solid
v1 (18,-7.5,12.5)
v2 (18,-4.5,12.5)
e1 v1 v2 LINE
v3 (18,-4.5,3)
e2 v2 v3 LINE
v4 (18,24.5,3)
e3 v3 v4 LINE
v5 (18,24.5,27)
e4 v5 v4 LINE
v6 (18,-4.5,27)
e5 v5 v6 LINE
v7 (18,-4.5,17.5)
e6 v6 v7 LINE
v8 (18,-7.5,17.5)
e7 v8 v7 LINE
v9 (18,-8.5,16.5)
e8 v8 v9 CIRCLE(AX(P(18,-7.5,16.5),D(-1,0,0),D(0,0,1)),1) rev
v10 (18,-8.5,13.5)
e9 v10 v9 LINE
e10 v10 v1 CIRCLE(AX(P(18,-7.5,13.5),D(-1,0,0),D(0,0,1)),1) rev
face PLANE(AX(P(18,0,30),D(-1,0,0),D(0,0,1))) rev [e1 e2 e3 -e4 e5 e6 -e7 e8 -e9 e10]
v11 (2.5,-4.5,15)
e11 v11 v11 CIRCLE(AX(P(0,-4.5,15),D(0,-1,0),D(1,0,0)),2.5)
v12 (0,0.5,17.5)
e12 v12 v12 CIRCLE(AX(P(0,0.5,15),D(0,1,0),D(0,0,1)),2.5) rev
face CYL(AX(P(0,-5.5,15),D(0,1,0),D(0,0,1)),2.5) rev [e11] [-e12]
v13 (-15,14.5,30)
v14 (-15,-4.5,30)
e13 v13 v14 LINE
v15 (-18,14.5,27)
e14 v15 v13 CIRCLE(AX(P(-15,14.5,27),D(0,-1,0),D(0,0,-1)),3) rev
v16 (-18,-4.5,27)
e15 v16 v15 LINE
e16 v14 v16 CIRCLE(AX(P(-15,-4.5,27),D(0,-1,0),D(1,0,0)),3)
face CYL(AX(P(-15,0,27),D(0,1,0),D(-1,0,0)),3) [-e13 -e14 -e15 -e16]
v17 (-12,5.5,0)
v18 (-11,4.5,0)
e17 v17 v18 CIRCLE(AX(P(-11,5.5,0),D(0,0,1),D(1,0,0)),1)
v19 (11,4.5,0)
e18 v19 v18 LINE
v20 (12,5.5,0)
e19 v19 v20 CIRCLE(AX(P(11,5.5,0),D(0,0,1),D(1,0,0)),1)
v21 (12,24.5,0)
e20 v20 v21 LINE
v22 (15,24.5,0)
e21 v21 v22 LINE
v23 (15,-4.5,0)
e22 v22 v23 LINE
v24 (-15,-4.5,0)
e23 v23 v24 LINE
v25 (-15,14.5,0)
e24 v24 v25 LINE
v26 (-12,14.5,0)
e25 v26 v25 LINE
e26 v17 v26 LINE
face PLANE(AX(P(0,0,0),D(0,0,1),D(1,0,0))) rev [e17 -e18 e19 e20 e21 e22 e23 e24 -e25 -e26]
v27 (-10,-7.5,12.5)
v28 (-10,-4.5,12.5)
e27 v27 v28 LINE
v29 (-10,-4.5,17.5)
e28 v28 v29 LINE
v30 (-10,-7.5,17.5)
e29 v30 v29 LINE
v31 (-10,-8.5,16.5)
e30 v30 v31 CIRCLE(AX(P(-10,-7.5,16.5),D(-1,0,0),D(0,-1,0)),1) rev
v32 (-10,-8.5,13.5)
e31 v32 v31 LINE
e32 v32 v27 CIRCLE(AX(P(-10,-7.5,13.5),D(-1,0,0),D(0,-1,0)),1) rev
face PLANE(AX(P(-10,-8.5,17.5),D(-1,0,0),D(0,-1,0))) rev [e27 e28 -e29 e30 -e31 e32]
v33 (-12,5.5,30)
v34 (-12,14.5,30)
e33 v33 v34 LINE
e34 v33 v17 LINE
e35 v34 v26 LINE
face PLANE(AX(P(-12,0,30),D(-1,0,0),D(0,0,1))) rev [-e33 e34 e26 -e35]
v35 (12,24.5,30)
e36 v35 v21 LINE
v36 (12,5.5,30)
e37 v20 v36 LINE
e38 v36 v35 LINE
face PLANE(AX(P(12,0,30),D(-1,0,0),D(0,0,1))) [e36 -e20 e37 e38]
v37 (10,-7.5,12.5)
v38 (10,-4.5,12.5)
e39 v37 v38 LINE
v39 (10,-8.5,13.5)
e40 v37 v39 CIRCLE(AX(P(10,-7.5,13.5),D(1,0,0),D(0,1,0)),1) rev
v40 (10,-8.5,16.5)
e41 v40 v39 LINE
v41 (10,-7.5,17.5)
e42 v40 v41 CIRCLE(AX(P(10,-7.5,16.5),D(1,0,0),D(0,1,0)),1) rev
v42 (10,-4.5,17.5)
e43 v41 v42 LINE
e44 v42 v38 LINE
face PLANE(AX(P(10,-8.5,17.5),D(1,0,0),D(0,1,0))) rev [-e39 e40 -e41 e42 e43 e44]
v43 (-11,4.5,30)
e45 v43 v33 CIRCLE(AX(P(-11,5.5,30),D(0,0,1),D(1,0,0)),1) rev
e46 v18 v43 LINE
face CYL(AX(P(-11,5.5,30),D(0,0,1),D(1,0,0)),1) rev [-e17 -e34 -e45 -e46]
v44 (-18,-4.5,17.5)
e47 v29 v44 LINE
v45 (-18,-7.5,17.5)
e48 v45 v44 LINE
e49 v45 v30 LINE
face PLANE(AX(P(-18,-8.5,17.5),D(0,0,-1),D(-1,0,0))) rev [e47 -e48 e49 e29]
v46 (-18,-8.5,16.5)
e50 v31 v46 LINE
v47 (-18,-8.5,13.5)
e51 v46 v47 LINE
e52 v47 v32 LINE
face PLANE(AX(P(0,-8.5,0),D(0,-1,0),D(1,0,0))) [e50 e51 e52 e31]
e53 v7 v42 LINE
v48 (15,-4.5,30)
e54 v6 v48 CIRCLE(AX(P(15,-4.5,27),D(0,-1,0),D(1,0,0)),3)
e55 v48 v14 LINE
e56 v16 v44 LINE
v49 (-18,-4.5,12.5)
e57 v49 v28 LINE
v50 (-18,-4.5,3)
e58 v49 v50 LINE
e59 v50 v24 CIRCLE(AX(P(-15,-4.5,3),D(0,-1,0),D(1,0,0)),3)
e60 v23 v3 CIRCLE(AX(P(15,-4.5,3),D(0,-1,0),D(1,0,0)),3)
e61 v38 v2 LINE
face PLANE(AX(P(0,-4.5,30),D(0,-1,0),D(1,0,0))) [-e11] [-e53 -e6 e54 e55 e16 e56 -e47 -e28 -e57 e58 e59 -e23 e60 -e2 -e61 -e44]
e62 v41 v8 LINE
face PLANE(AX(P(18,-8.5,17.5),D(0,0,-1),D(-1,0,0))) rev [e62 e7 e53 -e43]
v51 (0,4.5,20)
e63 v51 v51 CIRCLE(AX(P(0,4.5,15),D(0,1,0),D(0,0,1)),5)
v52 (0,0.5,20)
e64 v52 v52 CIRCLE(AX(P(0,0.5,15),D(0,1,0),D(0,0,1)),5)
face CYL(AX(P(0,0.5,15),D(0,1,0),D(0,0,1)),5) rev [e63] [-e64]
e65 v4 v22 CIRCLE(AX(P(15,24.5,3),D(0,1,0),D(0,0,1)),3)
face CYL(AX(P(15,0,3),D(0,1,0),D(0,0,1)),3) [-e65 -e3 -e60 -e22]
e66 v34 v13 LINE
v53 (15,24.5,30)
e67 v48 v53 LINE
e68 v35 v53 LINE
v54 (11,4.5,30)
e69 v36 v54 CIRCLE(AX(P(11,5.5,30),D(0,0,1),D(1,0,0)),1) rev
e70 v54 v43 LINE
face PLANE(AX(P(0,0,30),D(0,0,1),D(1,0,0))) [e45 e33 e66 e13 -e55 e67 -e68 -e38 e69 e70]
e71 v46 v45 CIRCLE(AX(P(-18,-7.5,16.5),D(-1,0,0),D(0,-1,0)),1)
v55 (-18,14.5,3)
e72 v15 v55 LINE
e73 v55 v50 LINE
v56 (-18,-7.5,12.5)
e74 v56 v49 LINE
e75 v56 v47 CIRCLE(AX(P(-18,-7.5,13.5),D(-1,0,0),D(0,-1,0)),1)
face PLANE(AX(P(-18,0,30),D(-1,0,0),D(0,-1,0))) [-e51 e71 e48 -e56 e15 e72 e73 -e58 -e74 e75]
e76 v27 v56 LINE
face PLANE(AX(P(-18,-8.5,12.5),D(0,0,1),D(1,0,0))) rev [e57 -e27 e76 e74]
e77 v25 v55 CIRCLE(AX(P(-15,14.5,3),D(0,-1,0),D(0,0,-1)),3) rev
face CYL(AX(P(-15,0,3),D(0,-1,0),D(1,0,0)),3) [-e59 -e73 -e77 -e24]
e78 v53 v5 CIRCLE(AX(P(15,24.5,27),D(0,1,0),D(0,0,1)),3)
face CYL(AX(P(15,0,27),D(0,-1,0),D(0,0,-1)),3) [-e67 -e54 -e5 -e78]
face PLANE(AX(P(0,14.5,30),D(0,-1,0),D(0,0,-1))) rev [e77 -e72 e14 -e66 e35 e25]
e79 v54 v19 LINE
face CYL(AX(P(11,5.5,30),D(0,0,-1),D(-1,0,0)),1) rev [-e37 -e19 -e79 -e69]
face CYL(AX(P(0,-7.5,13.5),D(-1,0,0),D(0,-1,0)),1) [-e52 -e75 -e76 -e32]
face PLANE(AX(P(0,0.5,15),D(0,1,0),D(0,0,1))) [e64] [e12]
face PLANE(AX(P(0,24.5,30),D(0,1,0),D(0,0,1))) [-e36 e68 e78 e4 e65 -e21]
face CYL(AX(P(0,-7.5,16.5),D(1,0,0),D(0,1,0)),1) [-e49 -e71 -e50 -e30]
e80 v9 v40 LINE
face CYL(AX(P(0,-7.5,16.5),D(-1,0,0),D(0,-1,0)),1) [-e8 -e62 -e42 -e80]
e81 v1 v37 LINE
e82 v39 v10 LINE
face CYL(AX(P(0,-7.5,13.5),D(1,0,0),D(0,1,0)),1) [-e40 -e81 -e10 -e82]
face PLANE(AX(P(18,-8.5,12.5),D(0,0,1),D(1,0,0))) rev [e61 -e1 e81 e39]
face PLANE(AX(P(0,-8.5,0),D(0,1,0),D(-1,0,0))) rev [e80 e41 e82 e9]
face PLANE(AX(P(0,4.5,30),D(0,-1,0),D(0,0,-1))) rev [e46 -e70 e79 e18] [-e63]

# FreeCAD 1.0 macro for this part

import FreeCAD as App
import Part
import Sketcher


def edges_at(feature, points):
    """Names of the edges that pass closest to the given points."""
    edges = feature.Shape.Edges
    near = lambda p: min(range(len(edges)), key=lambda i: edges[i].distToShape(Part.Vertex(*p))[0])
    return sorted({f"Edge{near(p) + 1}" for p in points})


def add_polygon(sketch, points):
    """Adds a closed chain of lines whose ends are joined by coincident constraints."""
    first, n = sketch.GeometryCount, len(points)
    for a, b in zip(points, points[1:] + points[:1]):
        sketch.addGeometry(Part.LineSegment(App.Vector(*a, 0), App.Vector(*b, 0)), False)
    for i in range(n):
        sketch.addConstraint(Sketcher.Constraint("Coincident", first + i, 2, first + (i + 1) % n, 1))

doc = App.newDocument("Part")
body = doc.addObject("PartDesign::Body", "Body")

sketch1 = body.newObject("Sketcher::SketchObject", "Sketch")
sketch1.AttachmentSupport = (doc.getObject("XY_Plane"), [""])
sketch1.MapMode = "FlatFace"
add_polygon(sketch1, [(-18, -4), (18, -4), (18, 24), (12, 24), (12, 4), (-12, 4), (-12, 14), (-18, 14)])
sketch1.addConstraint(Sketcher.Constraint("Horizontal", 0))
sketch1.addConstraint(Sketcher.Constraint("Vertical", 1))
sketch1.addConstraint(Sketcher.Constraint("Horizontal", 2))
sketch1.addConstraint(Sketcher.Constraint("Vertical", 3))
sketch1.addConstraint(Sketcher.Constraint("Horizontal", 4))
sketch1.addConstraint(Sketcher.Constraint("Vertical", 5))
sketch1.addConstraint(Sketcher.Constraint("Horizontal", 6))
sketch1.addConstraint(Sketcher.Constraint("Vertical", 7))
sketch1.addConstraint(Sketcher.Constraint("Equal", 2, 6))
sketch1.addConstraint(Sketcher.Constraint("DistanceX", 0, 1, 0, 2, 36.0))
sketch1.addConstraint(Sketcher.Constraint("DistanceX", 2, 2, 2, 1, 6.0))
sketch1.addConstraint(Sketcher.Constraint("DistanceY", 1, 1, 1, 2, 29.0))
sketch1.addConstraint(Sketcher.Constraint("DistanceY", 3, 2, 3, 1, 20.0))
sketch1.addConstraint(Sketcher.Constraint("DistanceY", 5, 1, 5, 2, 10.0))
sketch1.addConstraint(Sketcher.Constraint("DistanceX", -1, 1, 0, 2, 18.0))
sketch1.addConstraint(Sketcher.Constraint("DistanceY", 0, 2, -1, 1, 4.5))
pad1 = body.newObject("PartDesign::Pad", "Pad")
pad1.Profile = sketch1
pad1.Length = 30
doc.recompute()

fillet = body.newObject("PartDesign::Fillet", "Fillet")
fillet.Base = (pad1, edges_at(pad1, [(-12, 4.5, 15), (12, 4.5, 15)]))
fillet.Radius = 1
doc.recompute()

fillet2 = body.newObject("PartDesign::Fillet", "Fillet001")
fillet2.Base = (fillet, edges_at(fillet, [
    (18, 10, 0),
    (-18, 5, 0),
    (18, 10, 30),
    (-18, 5, 30),
]))
fillet2.Radius = 3

sketch2 = body.newObject("Sketcher::SketchObject", "Sketch001")
sketch2.AttachmentSupport = (doc.getObject("XZ_Plane"), [""])
sketch2.MapMode = "FlatFace"
sketch2.AttachmentOffset = App.Placement(App.Vector(0, 0, -4.5), App.Rotation())
sketch2.addGeometry(Part.Circle(App.Vector(0, 15, 0), App.Vector(0, 0, 1), 2.5), False)
sketch2.addConstraint(Sketcher.Constraint("PointOnObject", 0, 3, -2))
sketch2.addConstraint(Sketcher.Constraint("Diameter", 0, 5.0))
sketch2.addConstraint(Sketcher.Constraint("DistanceY", -1, 1, 0, 3, 15.0))
pocket1 = body.newObject("PartDesign::Pocket", "Pocket")
pocket1.Profile = sketch2
pocket1.Length = 10
pocket1.Reversed = True

sketch3 = body.newObject("Sketcher::SketchObject", "Sketch002")
sketch3.AttachmentSupport = (doc.getObject("XZ_Plane"), [""])
sketch3.MapMode = "FlatFace"
sketch3.AttachmentOffset = App.Placement(App.Vector(0, 0, -4.5), App.Rotation())
sketch3.addGeometry(Part.Circle(App.Vector(0, 15, 0), App.Vector(0, 0, 1), 5), False)
sketch3.addConstraint(Sketcher.Constraint("PointOnObject", 0, 3, -2))
sketch3.addConstraint(Sketcher.Constraint("Diameter", 0, 10.0))
sketch3.addConstraint(Sketcher.Constraint("DistanceY", -1, 1, 0, 3, 15.0))
pocket2 = body.newObject("PartDesign::Pocket", "Pocket001")
pocket2.Profile = sketch3
pocket2.Length = 4
pocket2.Reversed = True

sketch4 = body.newObject("Sketcher::SketchObject", "Sketch003")
sketch4.AttachmentSupport = (doc.getObject("XZ_Plane"), [""])
sketch4.MapMode = "FlatFace"
sketch4.AttachmentOffset = App.Placement(App.Vector(0, 0, 4.5), App.Rotation())
add_polygon(sketch4, [(-18, 18), (-18, 12), (-10, 12), (-10, 18)])
add_polygon(sketch4, [(10, 18), (10, 12), (18, 12), (18, 18)])
sketch4.addConstraint(Sketcher.Constraint("Vertical", 0))
sketch4.addConstraint(Sketcher.Constraint("Horizontal", 1))
sketch4.addConstraint(Sketcher.Constraint("Vertical", 2))
sketch4.addConstraint(Sketcher.Constraint("Horizontal", 3))
sketch4.addConstraint(Sketcher.Constraint("Vertical", 4))
sketch4.addConstraint(Sketcher.Constraint("Horizontal", 5))
sketch4.addConstraint(Sketcher.Constraint("Vertical", 6))
sketch4.addConstraint(Sketcher.Constraint("Horizontal", 7))
sketch4.addConstraint(Sketcher.Constraint("Symmetric", 1, 2, 4, 2, -2))
sketch4.addConstraint(Sketcher.Constraint("Symmetric", 3, 2, 6, 2, -2))
sketch4.addConstraint(Sketcher.Constraint("DistanceX", 1, 1, 1, 2, 8.0))
sketch4.addConstraint(Sketcher.Constraint("DistanceY", 0, 2, 0, 1, 5.0))
sketch4.addConstraint(Sketcher.Constraint("DistanceX", 0, 2, -1, 1, 18.0))
sketch4.addConstraint(Sketcher.Constraint("DistanceY", -1, 1, 0, 2, 12.5))
pad2 = body.newObject("PartDesign::Pad", "Pad001")
pad2.Profile = sketch4
pad2.Length = 4
doc.recompute()

fillet3 = body.newObject("PartDesign::Fillet", "Fillet002")
fillet3.Base = (pad2, edges_at(pad2, [
    (14, -8.5, 17.5),
    (14, -8.5, 12.5),
    (-14, -8.5, 12.5),
    (-14, -8.5, 17.5),
]))
fillet3.Radius = 1

doc.recompute()
